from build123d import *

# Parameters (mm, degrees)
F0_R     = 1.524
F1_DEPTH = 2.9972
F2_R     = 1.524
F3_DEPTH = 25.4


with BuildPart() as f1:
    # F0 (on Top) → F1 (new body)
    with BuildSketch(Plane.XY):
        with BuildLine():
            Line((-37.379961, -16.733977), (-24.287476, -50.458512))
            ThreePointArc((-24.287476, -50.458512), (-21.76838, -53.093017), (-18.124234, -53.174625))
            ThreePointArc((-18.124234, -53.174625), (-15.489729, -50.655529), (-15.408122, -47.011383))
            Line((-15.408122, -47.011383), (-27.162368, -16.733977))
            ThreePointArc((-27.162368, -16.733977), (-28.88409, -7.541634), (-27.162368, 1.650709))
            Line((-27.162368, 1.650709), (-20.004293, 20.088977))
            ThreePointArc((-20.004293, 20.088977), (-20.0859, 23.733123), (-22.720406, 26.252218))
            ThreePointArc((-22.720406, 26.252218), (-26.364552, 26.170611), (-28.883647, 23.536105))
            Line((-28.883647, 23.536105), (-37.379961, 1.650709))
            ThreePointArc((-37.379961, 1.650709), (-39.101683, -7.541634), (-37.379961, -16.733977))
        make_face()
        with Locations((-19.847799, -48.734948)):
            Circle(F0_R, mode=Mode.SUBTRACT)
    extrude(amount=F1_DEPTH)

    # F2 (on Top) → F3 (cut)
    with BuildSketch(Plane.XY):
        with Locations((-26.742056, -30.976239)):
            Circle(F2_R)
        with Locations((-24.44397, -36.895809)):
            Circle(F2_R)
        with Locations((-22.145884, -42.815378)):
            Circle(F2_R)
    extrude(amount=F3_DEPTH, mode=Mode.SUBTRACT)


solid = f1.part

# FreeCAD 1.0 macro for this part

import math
import FreeCAD as App
import Part
import Sketcher

V = App.Vector
Q = App.Units.Quantity

doc = App.newDocument("Part")
params = doc.addObject("Spreadsheet::Sheet", "Params")
for row, (alias, value) in enumerate([
    ("sketch1_diameter", "0.12 in"),
    ("sketch1_radius", "0.1875001 in"),
    ("sketch1_radius2", "0.1874999 in"),
    ("pad1_length", "0.118 in"),
    ("sketch2_diameter", "0.12 in"),
    ("pocket1_length", "1 in"),
], start=1):
    params.set(f"A{row}", alias)
    params.set(f"B{row}", "=" + value)
    params.setAlias(f"B{row}", alias)

body = doc.addObject("PartDesign::Body", "Body")

sketch1 = body.newObject("Sketcher::SketchObject", "Sketch")
sketch1.AttachmentSupport = (doc.getObject("XY_Plane"), [""])
sketch1.MapMode = "FlatFace"
sketch1.addGeometry([
    Part.LineSegment(V(-37.379961, -16.733977, 0), V(-24.287476, -50.458512, 0)),
    Part.ArcOfCircle(Part.Circle(V(-19.847797, -48.734945, 0), V(0, 0, 1), 4.762502), math.radians(-158.782848), math.radians(-68.782895)),
    Part.ArcOfCircle(Part.Circle(V(-19.8478, -48.734948, 0), V(0, 0, 1), 4.762501), math.radians(-68.782856), math.radians(21.217128)),
    Part.LineSegment(V(-15.408122, -47.011383, 0), V(-27.162368, -16.733977, 0)),
    Part.ArcOfCircle(Part.Circle(V(-3.484085, -7.541634, 0), V(0, 0, 1), 25.400005), math.radians(158.782876), math.radians(201.217124)),
    Part.LineSegment(V(-27.162368, 1.650709, 0), V(-20.004293, 20.088977, 0)),
    Part.ArcOfCircle(Part.Circle(V(-24.443968, 21.812542, 0), V(0, 0, 1), 4.762499), math.radians(-21.217139), math.radians(68.782889)),
    Part.ArcOfCircle(Part.Circle(V(-24.443971, 21.812543, 0), V(0, 0, 1), 4.762499), math.radians(68.782861), math.radians(158.782889)),
    Part.LineSegment(V(-28.883647, 23.536105, 0), V(-37.379961, 1.650709, 0)),
    Part.ArcOfCircle(Part.Circle(V(-13.701678, -7.541634, 0), V(0, 0, 1), 25.400005), math.radians(158.782876), math.radians(201.217124)),
    Part.Circle(V(-19.847799, -48.734948, 0), V(0, 0, 1), 1.524),
], False)
sketch1.addConstraint([
    Sketcher.Constraint("Coincident", 0, 2, 1, 1),
    Sketcher.Constraint("Coincident", 1, 2, 2, 1),
    Sketcher.Constraint("Coincident", 2, 2, 3, 1),
    Sketcher.Constraint("Coincident", 3, 2, 4, 2),
    Sketcher.Constraint("Coincident", 4, 1, 5, 1),
    Sketcher.Constraint("Coincident", 5, 2, 6, 1),
    Sketcher.Constraint("Coincident", 6, 2, 7, 1),
    Sketcher.Constraint("Coincident", 7, 2, 8, 1),
    Sketcher.Constraint("Coincident", 8, 2, 9, 1),
    Sketcher.Constraint("Coincident", 9, 2, 0, 1),
    Sketcher.Constraint("Coincident", 2, 3, 1, 3),
    Sketcher.Constraint("Coincident", 7, 3, 6, 3),
    Sketcher.Constraint("Coincident", 10, 3, 1, 3),
    Sketcher.Constraint("Diameter", 10, Q("0.12 in")),
    Sketcher.Constraint("Radius", 1, Q("0.1875001 in")),
    Sketcher.Constraint("Radius", 6, Q("0.1874999 in")),
    Sketcher.Constraint("DistanceX", 0, 2, -1, 1, Q("0.9561998 in")),
    Sketcher.Constraint("Radius", 4, 25.400005),
    Sketcher.Constraint("Radius", 9, 25.400005),
    Sketcher.Constraint("DistanceX", 2, 3, -1, 1, 19.8478),
    Sketcher.Constraint("DistanceX", 0, 2, 9, 3, 10.585798),
    Sketcher.Constraint("DistanceX", 4, 1, 6, 3, 2.7184),
    Sketcher.Constraint("Distance", 3, 32.478972),
    Sketcher.Constraint("DistanceX", 6, 3, -1, 1, 24.443968),
    Sketcher.Constraint("DistanceY", -1, 1, 6, 3, 21.812542),
    Sketcher.Constraint("DistanceY", 10, 3, -1, 1, 48.734948),
    Sketcher.Constraint("DistanceX", 2, 2, -1, 1, 15.408122),
    Sketcher.Constraint("DistanceX", 3, 2, -1, 1, 27.162368),
    Sketcher.Constraint("DistanceY", -1, 1, 4, 1, 1.650709),
    Sketcher.Constraint("DistanceX", 8, 2, -1, 1, 37.379961),
    Sketcher.Constraint("DistanceY", -1, 1, 8, 2, 1.650709),
    Sketcher.Constraint("DistanceX", 9, 2, -1, 1, 37.379961),
    Sketcher.Constraint("DistanceY", 1, 2, 1, 3, 4.43968),
    Sketcher.Constraint("DistanceY", 4, 1, 5, 2, 18.438268),
    Sketcher.Constraint("DistanceY", 5, 2, 6, 2, 6.163241),
    Sketcher.Constraint("DistanceX", 7, 2, 6, 3, 4.439679),
])
sketch1.setExpression("Constraints[13]", "Params.sketch1_diameter")
sketch1.setExpression("Constraints[14]", "Params.sketch1_radius")
sketch1.setExpression("Constraints[15]", "Params.sketch1_radius2")
pad1 = body.newObject("PartDesign::Pad", "Pad")
pad1.Profile = sketch1
pad1.setExpression("Length", "Params.pad1_length")

sketch2 = body.newObject("Sketcher::SketchObject", "Sketch001")
sketch2.AttachmentSupport = (doc.getObject("XY_Plane"), [""])
sketch2.MapMode = "FlatFace"
sketch2.addGeometry([
    Part.Circle(V(-26.742056, -30.976239, 0), V(0, 0, 1), 1.524),
    Part.Circle(V(-24.44397, -36.895809, 0), V(0, 0, 1), 1.524),
    Part.Circle(V(-22.145884, -42.815378, 0), V(0, 0, 1), 1.524),
], False)
sketch2.addConstraint([
    Sketcher.Constraint("Equal", 0, 1),
    Sketcher.Constraint("Equal", 1, 2),
    Sketcher.Constraint("Diameter", 0, Q("0.12 in")),
    Sketcher.Constraint("DistanceY", 0, 3, -1, 1, 30.976239),
    Sketcher.Constraint("DistanceX", 1, 3, -1, 1, 24.44397),
    Sketcher.Constraint("DistanceY", 1, 3, -1, 1, 36.895809),
    Sketcher.Constraint("DistanceY", 2, 3, -1, 1, 42.815378),
    Sketcher.Constraint("DistanceX", 0, 3, -1, 1, 26.742056),
    Sketcher.Constraint("DistanceX", 2, 3, -1, 1, 22.145884),
])
sketch2.setExpression("Constraints[2]", "Params.sketch2_diameter")
pocket1 = body.newObject("PartDesign::Pocket", "Pocket")
pocket1.Profile = sketch2
pocket1.setExpression("Length", "Params.pocket1_length")
pocket1.Reversed = True

doc.recompute()
